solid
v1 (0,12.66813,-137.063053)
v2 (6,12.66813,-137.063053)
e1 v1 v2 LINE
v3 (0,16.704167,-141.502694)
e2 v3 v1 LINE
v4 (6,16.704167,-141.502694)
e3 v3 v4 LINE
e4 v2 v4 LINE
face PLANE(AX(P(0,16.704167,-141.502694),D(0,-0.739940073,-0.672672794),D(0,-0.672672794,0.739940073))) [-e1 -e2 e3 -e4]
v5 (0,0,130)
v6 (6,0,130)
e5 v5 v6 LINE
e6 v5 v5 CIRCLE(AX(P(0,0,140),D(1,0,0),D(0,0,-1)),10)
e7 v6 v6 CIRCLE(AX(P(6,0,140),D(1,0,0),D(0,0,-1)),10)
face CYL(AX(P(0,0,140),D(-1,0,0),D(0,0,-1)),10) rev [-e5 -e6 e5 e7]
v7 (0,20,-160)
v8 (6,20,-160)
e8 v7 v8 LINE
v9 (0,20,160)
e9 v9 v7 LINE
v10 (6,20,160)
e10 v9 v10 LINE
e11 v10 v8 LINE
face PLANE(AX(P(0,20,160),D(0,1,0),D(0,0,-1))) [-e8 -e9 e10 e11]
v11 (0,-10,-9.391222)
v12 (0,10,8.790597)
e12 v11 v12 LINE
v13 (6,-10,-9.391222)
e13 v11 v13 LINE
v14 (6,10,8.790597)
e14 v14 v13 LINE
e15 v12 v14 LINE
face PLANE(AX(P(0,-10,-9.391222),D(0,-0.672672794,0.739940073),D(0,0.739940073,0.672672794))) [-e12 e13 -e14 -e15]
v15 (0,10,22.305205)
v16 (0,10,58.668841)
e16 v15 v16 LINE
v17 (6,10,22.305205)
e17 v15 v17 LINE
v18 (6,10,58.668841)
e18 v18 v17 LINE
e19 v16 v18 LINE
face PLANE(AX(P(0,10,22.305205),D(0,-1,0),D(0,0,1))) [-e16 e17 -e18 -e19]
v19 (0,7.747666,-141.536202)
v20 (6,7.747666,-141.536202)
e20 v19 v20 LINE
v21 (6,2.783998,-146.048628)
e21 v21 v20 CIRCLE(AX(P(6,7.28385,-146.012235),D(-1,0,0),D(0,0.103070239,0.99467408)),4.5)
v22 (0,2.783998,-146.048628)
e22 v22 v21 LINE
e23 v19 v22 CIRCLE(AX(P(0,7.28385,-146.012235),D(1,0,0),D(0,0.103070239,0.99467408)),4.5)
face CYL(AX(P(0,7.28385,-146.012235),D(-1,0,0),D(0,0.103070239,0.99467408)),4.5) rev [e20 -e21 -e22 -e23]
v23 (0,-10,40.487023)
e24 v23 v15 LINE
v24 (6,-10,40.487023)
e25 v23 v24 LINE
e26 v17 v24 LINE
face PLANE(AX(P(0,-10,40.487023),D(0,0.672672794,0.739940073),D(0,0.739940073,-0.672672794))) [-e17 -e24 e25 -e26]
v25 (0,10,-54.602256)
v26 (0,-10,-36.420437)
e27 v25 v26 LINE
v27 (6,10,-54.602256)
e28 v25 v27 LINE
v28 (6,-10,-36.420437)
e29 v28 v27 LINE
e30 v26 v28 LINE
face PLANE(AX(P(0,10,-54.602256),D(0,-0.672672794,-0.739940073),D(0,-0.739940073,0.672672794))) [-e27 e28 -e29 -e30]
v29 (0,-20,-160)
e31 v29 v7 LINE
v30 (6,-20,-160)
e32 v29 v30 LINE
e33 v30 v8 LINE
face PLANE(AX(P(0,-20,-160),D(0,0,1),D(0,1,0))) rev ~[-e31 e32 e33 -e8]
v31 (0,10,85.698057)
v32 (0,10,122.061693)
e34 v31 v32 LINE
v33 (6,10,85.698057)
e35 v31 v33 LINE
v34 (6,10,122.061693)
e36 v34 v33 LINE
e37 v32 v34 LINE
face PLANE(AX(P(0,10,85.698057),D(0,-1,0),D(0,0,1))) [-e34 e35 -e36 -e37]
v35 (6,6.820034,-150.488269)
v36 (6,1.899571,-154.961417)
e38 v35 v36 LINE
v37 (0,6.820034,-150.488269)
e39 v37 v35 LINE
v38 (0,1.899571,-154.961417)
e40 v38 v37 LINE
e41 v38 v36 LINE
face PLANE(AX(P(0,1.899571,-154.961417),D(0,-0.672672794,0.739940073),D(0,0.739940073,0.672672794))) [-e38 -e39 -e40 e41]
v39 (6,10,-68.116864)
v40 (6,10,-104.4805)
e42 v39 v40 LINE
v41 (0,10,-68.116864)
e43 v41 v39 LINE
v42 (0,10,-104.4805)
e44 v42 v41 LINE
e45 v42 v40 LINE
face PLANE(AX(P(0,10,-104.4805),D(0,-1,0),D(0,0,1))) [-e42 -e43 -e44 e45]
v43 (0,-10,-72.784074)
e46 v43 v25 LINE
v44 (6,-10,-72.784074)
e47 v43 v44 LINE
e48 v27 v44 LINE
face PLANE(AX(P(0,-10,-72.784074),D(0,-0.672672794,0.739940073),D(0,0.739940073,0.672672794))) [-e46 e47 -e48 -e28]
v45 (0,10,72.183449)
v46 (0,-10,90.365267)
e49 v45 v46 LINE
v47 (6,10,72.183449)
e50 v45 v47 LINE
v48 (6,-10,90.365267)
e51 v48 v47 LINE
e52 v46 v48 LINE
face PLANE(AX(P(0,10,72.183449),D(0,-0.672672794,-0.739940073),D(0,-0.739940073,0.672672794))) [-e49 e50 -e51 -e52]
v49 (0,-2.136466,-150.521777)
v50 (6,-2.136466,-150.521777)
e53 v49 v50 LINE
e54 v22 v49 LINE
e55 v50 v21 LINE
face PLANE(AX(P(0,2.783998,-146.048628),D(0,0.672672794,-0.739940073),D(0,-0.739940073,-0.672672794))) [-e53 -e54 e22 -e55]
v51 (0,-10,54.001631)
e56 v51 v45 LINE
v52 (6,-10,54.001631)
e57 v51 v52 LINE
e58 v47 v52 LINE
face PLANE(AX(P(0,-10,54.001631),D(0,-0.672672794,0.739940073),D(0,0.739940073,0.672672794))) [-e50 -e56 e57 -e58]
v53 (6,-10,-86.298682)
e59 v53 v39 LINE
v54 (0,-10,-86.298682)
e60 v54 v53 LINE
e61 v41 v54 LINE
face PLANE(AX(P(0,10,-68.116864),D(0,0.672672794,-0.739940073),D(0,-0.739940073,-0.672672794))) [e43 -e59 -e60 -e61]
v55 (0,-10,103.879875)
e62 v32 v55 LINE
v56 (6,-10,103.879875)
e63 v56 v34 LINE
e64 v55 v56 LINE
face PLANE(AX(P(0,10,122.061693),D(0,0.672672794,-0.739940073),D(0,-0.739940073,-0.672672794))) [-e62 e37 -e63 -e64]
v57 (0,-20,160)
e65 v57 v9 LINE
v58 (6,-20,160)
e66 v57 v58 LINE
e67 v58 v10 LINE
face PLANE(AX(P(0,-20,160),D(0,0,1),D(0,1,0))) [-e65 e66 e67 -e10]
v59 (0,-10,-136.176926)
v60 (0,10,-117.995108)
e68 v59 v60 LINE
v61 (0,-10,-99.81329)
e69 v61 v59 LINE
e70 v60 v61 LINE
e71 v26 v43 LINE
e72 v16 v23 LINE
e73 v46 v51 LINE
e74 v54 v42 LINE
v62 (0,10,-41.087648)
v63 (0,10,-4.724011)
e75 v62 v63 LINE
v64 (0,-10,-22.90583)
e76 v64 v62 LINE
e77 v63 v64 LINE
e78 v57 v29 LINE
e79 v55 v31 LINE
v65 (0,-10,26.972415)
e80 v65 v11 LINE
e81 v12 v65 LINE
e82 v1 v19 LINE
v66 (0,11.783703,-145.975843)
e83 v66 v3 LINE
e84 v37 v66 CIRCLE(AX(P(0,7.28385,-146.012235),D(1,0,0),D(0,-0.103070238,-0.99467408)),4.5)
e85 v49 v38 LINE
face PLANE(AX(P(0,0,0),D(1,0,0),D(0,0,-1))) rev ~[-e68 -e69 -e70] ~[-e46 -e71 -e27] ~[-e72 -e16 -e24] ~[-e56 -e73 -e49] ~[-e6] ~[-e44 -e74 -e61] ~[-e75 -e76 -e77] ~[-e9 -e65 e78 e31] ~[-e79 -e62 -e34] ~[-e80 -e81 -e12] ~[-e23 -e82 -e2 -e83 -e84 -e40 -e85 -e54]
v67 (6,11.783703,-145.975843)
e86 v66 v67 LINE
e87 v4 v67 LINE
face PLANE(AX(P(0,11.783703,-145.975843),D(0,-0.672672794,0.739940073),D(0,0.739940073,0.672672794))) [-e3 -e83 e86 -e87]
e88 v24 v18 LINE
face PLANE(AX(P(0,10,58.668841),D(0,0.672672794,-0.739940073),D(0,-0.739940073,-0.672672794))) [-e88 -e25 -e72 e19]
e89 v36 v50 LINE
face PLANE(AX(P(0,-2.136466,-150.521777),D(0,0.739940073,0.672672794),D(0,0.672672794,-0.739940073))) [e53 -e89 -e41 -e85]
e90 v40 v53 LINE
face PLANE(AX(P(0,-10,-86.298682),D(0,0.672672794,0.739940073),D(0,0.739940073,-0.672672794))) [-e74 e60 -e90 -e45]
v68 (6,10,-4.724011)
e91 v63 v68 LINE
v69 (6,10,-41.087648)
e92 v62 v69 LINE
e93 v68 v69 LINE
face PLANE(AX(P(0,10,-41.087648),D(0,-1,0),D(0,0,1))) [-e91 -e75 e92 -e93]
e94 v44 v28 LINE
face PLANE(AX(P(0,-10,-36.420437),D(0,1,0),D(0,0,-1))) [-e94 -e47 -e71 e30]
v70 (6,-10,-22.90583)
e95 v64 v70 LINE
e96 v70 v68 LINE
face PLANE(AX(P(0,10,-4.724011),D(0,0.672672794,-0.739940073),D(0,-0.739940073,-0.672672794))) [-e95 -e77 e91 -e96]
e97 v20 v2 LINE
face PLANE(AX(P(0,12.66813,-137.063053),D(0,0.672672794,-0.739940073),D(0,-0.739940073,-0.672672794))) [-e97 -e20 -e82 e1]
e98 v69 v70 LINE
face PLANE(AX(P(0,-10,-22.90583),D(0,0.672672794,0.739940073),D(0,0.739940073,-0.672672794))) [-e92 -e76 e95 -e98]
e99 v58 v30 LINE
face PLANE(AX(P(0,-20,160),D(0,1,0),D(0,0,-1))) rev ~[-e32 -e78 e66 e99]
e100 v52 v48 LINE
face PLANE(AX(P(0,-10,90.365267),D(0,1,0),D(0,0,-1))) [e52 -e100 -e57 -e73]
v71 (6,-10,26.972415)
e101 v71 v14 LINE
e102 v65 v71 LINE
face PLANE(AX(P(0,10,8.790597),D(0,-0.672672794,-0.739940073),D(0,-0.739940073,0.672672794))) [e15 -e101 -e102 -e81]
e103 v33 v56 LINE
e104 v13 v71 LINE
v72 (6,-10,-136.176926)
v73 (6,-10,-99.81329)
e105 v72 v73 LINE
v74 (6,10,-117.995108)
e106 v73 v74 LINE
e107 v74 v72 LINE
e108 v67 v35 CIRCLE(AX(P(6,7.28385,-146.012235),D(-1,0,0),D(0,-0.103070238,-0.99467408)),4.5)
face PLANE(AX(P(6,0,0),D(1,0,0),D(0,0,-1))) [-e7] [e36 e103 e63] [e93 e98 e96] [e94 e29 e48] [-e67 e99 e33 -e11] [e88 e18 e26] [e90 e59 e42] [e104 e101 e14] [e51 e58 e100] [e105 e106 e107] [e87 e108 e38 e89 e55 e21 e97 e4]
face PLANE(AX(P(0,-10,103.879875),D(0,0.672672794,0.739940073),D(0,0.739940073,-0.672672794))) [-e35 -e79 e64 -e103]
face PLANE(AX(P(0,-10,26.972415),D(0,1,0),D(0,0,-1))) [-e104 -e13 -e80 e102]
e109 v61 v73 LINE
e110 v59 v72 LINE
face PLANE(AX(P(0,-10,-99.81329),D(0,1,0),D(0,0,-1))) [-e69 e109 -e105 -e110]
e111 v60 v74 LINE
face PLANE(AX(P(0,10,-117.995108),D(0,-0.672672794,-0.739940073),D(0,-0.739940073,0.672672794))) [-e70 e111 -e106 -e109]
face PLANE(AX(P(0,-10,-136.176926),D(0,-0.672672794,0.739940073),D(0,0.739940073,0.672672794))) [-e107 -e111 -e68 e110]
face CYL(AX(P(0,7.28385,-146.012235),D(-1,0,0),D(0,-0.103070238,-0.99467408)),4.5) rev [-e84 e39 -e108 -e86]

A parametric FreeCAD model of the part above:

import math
import FreeCAD as App
import Part
import Sketcher
from FreeCAD import Vector


def add_polygon(sketch, points):
    """Adds a closed chain of lines whose ends are joined by coincident constraints."""
    first, n = sketch.GeometryCount, len(points)
    for a, b in zip(points, points[1:] + points[:1]):
        sketch.addGeometry(Part.LineSegment(App.Vector(*a, 0), App.Vector(*b, 0)), False)
    for i in range(n):
        sketch.addConstraint(Sketcher.Constraint("Coincident", first + i, 2, first + (i + 1) % n, 1))

doc = App.newDocument("Part")
body = doc.addObject("PartDesign::Body", "Body")

sketch1 = body.newObject("Sketcher::SketchObject", "Sketch")
sketch1.AttachmentSupport = (doc.getObject("YZ_Plane"), [""])
sketch1.MapMode = "FlatFace"
add_polygon(sketch1, [(20, 160), (-20, 160), (-20, -160), (20, -160)])
sketch1.addGeometry(Part.Circle(Vector(0, 140, 0), Vector(0, 0, 1), 10), False)
sketch1.addConstraint([
    Sketcher.Constraint("Horizontal", 0),
    Sketcher.Constraint("Vertical", 1),
    Sketcher.Constraint("Horizontal", 2),
    Sketcher.Constraint("Vertical", 3),
    Sketcher.Constraint("Symmetric", 0, 2, 2, 2, -1, 1),
    Sketcher.Constraint("PointOnObject", 4, 3, -2),
    Sketcher.Constraint("Diameter", 4, 20.0),
    Sketcher.Constraint("DistanceX", 0, 2, 0, 1, 40.0),
    Sketcher.Constraint("DistanceY", 1, 2, 1, 1, 320.0),
    Sketcher.Constraint("DistanceY", -1, 1, 4, 3, 140.0),
])
pad1 = body.newObject("PartDesign::Pad", "Pad")
pad1.Profile = sketch1
pad1.Length = 6

sketch2 = body.newObject("Sketcher::SketchObject", "Sketch001")
sketch2.AttachmentSupport = (doc.getObject("YZ_Plane"), [""])
sketch2.MapMode = "FlatFace"
add_polygon(sketch2, [(10, 72), (-10, 54), (-10, 90)])
add_polygon(sketch2, [(10, 59), (10, 22), (-10, 40)])
add_polygon(sketch2, [(10, 9), (-10, -9), (-10, 27)])
add_polygon(sketch2, [(-10, -23), (10, -5), (10, -41)])
add_polygon(sketch2, [(-10, -73), (-10, -36), (10, -55)])
add_polygon(sketch2, [(-10, -86), (10, -68), (10, -104)])
add_polygon(sketch2, [(-10, -136), (-10, -100), (10, -118)])
add_polygon(sketch2, [(10, 122), (10, 86), (-10, 104)])
sketch2.addConstraint([
    Sketcher.Constraint("Vertical", 1),
    Sketcher.Constraint("Vertical", 3),
    Sketcher.Constraint("Vertical", 7),
    Sketcher.Constraint("Vertical", 10),
    Sketcher.Constraint("Vertical", 12),
    Sketcher.Constraint("Vertical", 16),
    Sketcher.Constraint("Vertical", 18),
    Sketcher.Constraint("Vertical", 21),
    Sketcher.Constraint("Parallel", 2, 4),
    Sketcher.Constraint("Parallel", 0, 5),
    Sketcher.Constraint("Parallel", 5, 6),
    Sketcher.Constraint("Parallel", 4, 8),
    Sketcher.Constraint("Parallel", 6, 9),
    Sketcher.Constraint("Parallel", 8, 11),
    Sketcher.Constraint("Parallel", 11, 13),
    Sketcher.Constraint("Parallel", 9, 14),
    Sketcher.Constraint("Parallel", 14, 15),
    Sketcher.Constraint("Parallel", 13, 17),
    Sketcher.Constraint("Parallel", 17, 19),
    Sketcher.Constraint("Parallel", 15, 20),
    Sketcher.Constraint("Parallel", 19, 22),
    Sketcher.Constraint("Parallel", 20, 23),
    Sketcher.Constraint("Vertical", 2, 2, 3, 2),
    Sketcher.Constraint("Vertical", 1, 2, 4, 2),
    Sketcher.Constraint("Vertical", 4, 2, 6, 2),
    Sketcher.Constraint("Vertical", 5, 2, 8, 2),
    Sketcher.Constraint("Vertical", 8, 2, 9, 2),
    Sketcher.Constraint("Vertical", 7, 2, 11, 2),
    Sketcher.Constraint("Vertical", 11, 2, 12, 2),
    Sketcher.Constraint("Vertical", 10, 2, 13, 2),
    Sketcher.Constraint("Vertical", 13, 2, 15, 2),
    Sketcher.Constraint("Vertical", 14, 2, 17, 2),
    Sketcher.Constraint("Vertical", 17, 2, 18, 2),
    Sketcher.Constraint("Vertical", 16, 2, 19, 2),
    Sketcher.Constraint("Vertical", 19, 2, 21, 2),
    Sketcher.Constraint("Vertical", 20, 2, 22, 2),
    Sketcher.Constraint("Equal", 0, 2),
    Sketcher.Constraint("DistanceX", 0, 2, -1, 1, 10.0),
    Sketcher.Constraint("DistanceX", -1, 1, 2, 2, 10.0),
    Sketcher.Constraint("DistanceY", 16, 2, -1, 1, 104.4805),
    Sketcher.Constraint("DistanceY", 1, 1, 1, 2, 36.363636),
    Sketcher.Constraint("DistanceY", -1, 1, 0, 2, 54.001631),
    Sketcher.Constraint("DistanceY", -1, 1, 5, 2, 58.668841),
    Sketcher.Constraint("DistanceY", 6, 2, -1, 1, 9.391222),
    Sketcher.Constraint("DistanceY", 9, 2, -1, 1, 4.724011),
    Sketcher.Constraint("DistanceY", 18, 2, -1, 1, 99.81329),
    Sketcher.Constraint("DistanceY", 10, 2, 12, 2, 4.66721),
    Sketcher.Constraint("DistanceY", 21, 2, 1, 2, 4.66721),
])
pocket1 = body.newObject("PartDesign::Pocket", "Pocket")
pocket1.Profile = sketch2
pocket1.Length = 10
pocket1.Reversed = True

sketch3 = body.newObject("Sketcher::SketchObject", "Sketch002")
sketch3.AttachmentSupport = (doc.getObject("YZ_Plane"), [""])
sketch3.MapMode = "FlatFace"
sketch3.addGeometry([
    Part.LineSegment(Vector(-2.1, -150.5, 0), Vector(2.8, -146, 0)),
    Part.ArcOfCircle(Part.Circle(Vector(7.3, -146, 0), Vector(0, 0, 1), 4.5), math.radians(84), math.radians(180)),
    Part.LineSegment(Vector(7.7, -141.5, 0), Vector(12.7, -137.1, 0)),
    Part.LineSegment(Vector(12.7, -137.1, 0), Vector(16.7, -141.5, 0)),
    Part.LineSegment(Vector(16.7, -141.5, 0), Vector(11.8, -146, 0)),
    Part.ArcOfCircle(Part.Circle(Vector(7.3, -146, 0), Vector(0, 0, 1), 4.5), math.radians(-96), math.radians(0)),
    Part.LineSegment(Vector(6.8, -150.5, 0), Vector(1.9, -155, 0)),
    Part.LineSegment(Vector(1.9, -155, 0), Vector(-2.1, -150.5, 0)),
], False)
sketch3.addConstraint([
    Sketcher.Constraint("Coincident", 0, 2, 1, 2),
    Sketcher.Constraint("Coincident", 1, 1, 2, 1),
    Sketcher.Constraint("Coincident", 2, 2, 3, 1),
    Sketcher.Constraint("Coincident", 3, 2, 4, 1),
    Sketcher.Constraint("Coincident", 4, 2, 5, 2),
    Sketcher.Constraint("Coincident", 5, 1, 6, 1),
    Sketcher.Constraint("Coincident", 6, 2, 7, 1),
    Sketcher.Constraint("Coincident", 7, 2, 0, 1),
    Sketcher.Constraint("Coincident", 5, 3, 1, 3),
    Sketcher.Constraint("Equal", 1, 5),
    Sketcher.Constraint("Parallel", 0, 2),
    Sketcher.Constraint("Perpendicular", 2, 3),
    Sketcher.Constraint("Perpendicular", 3, 4),
    Sketcher.Constraint("Parallel", 4, 6),
    Sketcher.Constraint("Perpendicular", 6, 7),
    Sketcher.Constraint("Equal", 0, 2),
    Sketcher.Constraint("Equal", 2, 4),
    Sketcher.Constraint("Equal", 4, 6),
    Sketcher.Constraint("Equal", 3, 7),
    Sketcher.Constraint("Radius", 1, 4.5),
    Sketcher.Constraint("Distance", 3, 6.0),
    Sketcher.Constraint("DistanceX", 1, 1, 3, 2, 8.9565),
    Sketcher.Constraint("DistanceX", -1, 1, 1, 3, 7.28385),
    Sketcher.Constraint("DistanceY", 0, 2, -1, 1, 146.048628),
    Sketcher.Constraint("DistanceX", -1, 1, 2, 2, 12.66813),
])
pocket2 = body.newObject("PartDesign::Pocket", "Pocket001")
pocket2.Profile = sketch3
pocket2.Type = "ThroughAll"
pocket2.Reversed = True

doc.recompute()
